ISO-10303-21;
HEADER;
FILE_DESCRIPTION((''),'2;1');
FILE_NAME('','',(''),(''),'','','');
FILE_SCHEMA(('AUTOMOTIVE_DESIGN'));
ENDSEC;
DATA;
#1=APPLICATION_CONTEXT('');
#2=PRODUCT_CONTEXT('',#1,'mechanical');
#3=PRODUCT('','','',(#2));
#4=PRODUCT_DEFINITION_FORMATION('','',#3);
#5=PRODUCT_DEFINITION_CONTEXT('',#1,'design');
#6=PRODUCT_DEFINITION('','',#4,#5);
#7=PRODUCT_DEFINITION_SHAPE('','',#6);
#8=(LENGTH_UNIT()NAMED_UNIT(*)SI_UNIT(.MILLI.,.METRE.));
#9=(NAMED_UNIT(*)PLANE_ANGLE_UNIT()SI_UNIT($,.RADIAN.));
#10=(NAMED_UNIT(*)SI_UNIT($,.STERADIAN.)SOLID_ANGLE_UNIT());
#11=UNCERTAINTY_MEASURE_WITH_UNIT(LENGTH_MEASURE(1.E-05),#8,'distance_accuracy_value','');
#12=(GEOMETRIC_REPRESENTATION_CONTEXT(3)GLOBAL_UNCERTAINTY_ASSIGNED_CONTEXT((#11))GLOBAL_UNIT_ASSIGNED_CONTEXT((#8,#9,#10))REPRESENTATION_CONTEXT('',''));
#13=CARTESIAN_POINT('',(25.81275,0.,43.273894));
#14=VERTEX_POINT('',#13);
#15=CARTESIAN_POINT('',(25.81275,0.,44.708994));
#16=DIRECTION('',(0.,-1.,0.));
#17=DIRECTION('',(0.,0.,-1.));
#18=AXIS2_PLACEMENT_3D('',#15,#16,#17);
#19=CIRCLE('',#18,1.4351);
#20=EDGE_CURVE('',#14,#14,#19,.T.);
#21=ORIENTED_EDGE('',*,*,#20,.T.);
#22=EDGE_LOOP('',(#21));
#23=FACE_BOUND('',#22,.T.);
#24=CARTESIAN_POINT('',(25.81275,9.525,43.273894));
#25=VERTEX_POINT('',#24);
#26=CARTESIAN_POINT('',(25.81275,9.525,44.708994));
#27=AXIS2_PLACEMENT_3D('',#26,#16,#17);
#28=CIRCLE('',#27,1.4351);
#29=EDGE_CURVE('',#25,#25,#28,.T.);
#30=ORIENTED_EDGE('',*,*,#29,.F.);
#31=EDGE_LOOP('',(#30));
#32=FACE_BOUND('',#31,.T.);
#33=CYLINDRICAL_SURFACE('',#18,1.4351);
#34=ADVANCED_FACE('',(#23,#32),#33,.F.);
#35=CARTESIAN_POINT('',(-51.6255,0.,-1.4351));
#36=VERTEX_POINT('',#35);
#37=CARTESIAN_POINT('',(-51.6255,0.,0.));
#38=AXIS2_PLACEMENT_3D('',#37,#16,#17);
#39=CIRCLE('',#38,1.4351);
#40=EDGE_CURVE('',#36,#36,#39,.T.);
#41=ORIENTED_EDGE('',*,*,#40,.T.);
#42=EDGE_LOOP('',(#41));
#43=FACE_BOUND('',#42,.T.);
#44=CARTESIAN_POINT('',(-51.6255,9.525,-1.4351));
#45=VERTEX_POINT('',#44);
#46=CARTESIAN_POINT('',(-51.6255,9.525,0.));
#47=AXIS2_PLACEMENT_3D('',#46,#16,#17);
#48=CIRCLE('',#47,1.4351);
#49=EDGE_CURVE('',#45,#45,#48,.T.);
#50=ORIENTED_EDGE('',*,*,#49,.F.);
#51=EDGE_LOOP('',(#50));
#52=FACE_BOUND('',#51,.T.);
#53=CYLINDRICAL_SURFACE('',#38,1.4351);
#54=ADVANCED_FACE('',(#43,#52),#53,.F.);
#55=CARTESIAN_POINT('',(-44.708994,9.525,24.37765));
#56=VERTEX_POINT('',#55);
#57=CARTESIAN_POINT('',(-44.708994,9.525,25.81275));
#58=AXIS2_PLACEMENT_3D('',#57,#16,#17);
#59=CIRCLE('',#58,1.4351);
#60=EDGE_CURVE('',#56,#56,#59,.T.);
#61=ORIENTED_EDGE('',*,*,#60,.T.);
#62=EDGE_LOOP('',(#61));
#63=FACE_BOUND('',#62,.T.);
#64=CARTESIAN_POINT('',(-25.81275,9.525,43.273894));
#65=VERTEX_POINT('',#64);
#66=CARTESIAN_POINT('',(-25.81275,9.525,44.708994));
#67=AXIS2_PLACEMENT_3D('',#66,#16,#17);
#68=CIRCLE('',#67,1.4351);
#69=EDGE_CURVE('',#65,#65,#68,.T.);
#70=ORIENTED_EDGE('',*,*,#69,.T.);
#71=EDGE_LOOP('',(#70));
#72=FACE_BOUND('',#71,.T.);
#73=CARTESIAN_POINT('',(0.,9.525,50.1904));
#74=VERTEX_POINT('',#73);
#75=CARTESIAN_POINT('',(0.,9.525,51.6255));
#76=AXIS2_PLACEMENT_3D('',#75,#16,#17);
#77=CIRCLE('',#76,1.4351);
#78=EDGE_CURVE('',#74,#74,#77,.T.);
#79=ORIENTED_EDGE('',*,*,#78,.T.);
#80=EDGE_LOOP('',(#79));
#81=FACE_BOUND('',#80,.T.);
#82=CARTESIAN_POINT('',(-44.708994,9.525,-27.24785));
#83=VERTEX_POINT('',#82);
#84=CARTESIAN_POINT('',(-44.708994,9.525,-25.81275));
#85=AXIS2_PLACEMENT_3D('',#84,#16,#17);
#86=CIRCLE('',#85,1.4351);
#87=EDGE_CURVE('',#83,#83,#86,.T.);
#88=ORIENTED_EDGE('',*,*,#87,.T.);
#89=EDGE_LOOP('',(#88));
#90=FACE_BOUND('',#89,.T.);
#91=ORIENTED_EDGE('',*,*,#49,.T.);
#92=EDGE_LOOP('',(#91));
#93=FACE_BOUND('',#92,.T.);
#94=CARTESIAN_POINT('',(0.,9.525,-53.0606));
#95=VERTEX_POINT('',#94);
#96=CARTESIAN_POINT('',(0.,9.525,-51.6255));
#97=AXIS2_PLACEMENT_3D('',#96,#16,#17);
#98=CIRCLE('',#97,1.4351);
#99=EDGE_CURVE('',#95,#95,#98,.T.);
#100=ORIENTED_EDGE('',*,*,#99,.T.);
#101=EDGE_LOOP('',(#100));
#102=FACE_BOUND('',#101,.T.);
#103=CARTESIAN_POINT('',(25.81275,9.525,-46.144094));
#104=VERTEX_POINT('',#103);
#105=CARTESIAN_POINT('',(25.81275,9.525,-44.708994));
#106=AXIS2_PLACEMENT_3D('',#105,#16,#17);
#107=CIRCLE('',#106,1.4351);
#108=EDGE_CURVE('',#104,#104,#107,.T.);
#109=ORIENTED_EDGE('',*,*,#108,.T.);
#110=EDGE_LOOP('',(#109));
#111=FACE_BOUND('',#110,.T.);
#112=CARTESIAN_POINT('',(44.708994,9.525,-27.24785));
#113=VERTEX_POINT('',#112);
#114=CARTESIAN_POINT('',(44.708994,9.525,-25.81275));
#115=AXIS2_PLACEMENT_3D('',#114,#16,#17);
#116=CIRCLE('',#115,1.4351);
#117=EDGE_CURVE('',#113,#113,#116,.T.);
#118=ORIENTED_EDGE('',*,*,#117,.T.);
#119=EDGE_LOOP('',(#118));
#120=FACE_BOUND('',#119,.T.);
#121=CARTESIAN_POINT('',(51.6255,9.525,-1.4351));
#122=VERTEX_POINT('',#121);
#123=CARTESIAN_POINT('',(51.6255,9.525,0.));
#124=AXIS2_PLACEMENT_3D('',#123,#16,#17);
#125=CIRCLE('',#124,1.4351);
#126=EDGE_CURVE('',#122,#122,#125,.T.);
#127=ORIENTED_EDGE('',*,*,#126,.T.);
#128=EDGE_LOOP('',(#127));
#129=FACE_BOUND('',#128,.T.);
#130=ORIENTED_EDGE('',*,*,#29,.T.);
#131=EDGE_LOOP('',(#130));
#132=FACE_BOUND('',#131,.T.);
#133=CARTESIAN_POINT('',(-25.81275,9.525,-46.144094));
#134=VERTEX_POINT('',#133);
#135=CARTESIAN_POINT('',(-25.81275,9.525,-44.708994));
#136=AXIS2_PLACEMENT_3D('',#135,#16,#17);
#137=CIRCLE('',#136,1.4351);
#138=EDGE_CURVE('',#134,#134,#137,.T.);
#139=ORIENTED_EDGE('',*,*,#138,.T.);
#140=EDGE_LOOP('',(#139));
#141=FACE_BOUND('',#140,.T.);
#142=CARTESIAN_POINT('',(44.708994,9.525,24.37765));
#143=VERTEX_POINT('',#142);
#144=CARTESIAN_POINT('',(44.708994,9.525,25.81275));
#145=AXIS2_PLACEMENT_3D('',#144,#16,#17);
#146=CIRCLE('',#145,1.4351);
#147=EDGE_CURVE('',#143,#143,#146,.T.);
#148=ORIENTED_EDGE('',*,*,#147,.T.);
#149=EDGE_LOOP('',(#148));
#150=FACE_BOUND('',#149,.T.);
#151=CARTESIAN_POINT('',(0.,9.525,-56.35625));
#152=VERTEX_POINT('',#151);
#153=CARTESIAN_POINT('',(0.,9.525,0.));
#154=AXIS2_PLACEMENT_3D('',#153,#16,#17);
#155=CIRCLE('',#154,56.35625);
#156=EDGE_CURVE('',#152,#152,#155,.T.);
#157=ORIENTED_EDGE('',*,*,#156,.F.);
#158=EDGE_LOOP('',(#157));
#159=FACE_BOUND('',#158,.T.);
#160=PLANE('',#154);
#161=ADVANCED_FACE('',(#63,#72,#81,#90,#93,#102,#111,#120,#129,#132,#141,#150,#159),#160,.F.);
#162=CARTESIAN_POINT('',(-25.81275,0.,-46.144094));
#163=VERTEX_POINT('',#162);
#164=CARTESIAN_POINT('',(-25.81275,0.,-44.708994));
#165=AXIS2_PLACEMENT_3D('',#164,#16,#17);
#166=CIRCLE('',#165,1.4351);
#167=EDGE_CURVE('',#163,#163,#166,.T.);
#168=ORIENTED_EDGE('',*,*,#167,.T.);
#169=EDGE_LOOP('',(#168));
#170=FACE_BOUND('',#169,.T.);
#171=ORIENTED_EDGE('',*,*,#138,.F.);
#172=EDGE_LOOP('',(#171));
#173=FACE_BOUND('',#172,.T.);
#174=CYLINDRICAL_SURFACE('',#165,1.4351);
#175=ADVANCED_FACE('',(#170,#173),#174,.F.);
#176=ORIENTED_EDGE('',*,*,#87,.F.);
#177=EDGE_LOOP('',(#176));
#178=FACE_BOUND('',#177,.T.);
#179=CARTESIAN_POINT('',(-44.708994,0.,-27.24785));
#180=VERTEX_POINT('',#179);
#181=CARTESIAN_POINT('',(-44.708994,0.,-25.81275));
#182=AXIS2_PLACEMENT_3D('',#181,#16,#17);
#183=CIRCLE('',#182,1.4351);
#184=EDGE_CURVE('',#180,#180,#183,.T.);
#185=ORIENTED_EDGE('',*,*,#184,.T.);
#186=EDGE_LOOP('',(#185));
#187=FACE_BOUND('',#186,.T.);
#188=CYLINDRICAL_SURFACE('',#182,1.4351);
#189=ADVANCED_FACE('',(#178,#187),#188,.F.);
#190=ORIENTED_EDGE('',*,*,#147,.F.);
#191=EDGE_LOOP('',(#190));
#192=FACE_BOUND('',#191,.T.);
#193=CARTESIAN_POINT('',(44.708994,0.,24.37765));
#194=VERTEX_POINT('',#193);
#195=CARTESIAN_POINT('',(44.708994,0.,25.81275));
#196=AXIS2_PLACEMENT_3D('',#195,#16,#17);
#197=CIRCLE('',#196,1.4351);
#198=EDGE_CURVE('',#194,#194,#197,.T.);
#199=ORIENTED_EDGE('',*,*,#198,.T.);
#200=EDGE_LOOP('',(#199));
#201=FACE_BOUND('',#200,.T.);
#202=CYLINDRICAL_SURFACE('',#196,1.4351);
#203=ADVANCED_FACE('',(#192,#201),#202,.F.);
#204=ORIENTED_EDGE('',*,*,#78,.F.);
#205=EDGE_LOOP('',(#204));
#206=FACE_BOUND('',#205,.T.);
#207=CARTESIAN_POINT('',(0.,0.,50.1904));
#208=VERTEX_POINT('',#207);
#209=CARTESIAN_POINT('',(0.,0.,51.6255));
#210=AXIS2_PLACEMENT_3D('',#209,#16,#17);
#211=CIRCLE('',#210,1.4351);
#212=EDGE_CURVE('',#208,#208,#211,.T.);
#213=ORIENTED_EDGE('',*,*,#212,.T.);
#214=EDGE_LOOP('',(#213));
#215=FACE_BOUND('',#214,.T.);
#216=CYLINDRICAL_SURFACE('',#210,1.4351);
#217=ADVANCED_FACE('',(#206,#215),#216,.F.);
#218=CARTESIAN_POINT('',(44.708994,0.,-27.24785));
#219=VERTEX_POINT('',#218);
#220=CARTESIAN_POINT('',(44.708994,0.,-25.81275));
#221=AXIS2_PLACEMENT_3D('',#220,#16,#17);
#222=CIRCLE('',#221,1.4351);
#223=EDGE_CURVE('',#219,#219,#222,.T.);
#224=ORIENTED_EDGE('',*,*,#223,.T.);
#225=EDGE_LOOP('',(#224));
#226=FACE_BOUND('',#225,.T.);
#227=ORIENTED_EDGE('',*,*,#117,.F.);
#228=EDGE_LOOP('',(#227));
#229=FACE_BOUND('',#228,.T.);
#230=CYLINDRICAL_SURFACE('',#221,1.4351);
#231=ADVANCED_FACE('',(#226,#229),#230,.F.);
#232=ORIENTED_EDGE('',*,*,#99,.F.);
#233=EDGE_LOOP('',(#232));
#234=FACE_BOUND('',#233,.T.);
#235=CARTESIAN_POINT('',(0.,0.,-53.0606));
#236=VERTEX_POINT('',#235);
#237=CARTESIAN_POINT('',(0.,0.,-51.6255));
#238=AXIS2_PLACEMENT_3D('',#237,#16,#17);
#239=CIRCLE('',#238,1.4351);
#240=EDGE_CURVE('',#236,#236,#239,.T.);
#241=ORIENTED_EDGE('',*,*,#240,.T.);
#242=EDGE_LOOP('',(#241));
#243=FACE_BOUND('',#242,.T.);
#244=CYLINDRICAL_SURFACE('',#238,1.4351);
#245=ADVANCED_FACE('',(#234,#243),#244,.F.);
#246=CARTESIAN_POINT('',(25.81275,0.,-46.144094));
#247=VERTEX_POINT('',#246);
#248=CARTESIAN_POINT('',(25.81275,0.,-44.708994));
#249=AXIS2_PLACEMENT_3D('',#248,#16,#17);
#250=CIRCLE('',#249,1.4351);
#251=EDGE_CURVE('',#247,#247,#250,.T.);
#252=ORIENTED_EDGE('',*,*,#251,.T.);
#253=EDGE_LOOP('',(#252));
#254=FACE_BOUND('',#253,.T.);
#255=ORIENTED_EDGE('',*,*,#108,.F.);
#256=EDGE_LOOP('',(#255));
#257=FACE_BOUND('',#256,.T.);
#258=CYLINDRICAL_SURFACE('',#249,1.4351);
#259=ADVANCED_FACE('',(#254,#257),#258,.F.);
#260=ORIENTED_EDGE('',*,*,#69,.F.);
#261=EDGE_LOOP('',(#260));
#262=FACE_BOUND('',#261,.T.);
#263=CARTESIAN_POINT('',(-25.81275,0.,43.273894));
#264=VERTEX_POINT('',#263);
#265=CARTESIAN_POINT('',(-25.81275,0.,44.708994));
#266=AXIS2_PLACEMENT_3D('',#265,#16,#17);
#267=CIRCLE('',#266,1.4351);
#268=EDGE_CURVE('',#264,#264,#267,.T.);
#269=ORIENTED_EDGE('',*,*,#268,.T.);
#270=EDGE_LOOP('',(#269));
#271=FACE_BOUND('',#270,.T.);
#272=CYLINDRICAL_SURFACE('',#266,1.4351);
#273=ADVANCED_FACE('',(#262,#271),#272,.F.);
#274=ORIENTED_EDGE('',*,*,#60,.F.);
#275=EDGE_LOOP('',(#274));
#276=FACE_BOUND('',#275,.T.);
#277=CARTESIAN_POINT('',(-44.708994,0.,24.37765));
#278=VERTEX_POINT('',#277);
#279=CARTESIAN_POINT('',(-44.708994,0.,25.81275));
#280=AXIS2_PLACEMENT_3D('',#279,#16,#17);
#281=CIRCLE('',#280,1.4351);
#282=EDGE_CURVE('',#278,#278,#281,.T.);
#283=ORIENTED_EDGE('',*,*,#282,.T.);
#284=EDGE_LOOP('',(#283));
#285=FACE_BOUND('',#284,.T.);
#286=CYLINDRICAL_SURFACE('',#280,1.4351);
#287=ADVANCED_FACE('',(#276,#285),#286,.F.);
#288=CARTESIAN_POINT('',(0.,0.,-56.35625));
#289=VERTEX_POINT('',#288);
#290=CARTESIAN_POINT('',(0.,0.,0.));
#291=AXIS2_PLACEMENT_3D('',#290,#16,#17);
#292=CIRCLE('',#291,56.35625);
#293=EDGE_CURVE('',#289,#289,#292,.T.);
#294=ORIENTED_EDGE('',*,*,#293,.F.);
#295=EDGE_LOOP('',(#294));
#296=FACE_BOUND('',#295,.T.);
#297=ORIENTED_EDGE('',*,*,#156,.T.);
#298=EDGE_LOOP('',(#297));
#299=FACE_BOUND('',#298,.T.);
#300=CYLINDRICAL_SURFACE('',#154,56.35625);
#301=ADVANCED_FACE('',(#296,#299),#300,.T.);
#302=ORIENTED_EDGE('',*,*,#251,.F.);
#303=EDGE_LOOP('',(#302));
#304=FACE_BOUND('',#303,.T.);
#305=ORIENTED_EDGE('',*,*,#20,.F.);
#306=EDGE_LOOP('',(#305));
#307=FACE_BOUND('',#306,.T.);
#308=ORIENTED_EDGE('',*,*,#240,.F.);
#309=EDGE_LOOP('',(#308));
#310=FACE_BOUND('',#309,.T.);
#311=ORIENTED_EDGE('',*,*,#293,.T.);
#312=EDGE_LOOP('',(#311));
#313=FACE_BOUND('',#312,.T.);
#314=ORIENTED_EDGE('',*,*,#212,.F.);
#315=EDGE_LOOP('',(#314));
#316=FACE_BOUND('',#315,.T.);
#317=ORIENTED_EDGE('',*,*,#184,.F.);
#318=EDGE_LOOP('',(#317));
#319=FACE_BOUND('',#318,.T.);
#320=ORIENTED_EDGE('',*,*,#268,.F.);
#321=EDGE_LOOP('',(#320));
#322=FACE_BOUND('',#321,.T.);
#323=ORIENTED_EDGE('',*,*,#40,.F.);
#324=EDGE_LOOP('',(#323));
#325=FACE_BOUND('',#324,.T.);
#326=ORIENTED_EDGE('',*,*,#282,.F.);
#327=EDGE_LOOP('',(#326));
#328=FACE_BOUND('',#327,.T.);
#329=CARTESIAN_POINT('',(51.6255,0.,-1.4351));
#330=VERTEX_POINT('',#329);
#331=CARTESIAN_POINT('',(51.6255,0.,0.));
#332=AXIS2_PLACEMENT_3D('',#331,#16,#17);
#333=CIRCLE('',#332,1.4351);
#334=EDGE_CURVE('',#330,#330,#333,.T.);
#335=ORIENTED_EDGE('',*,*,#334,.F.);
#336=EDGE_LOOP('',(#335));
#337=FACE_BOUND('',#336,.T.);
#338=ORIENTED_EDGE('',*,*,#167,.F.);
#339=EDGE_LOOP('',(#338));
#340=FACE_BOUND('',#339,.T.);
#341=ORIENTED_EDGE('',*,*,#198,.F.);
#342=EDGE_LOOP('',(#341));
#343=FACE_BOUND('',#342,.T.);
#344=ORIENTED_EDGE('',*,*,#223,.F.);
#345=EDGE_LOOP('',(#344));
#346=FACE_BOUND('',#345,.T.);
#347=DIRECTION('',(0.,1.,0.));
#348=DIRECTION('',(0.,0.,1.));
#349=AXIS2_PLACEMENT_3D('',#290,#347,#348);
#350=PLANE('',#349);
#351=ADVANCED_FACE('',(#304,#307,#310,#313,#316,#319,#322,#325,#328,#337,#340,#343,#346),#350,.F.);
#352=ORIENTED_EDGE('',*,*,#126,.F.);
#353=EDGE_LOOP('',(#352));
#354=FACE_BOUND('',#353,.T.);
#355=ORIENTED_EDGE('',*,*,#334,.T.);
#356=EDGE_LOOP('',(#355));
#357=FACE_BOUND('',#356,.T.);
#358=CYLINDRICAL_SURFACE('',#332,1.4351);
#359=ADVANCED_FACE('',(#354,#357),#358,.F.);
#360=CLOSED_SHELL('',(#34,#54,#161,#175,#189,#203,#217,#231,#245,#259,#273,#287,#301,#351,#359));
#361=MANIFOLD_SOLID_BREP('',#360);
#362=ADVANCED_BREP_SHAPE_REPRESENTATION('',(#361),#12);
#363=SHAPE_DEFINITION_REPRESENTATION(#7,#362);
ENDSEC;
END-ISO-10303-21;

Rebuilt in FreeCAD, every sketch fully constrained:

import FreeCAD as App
import Part
import Sketcher
from FreeCAD import Vector
Q = App.Units.Quantity

doc = App.newDocument("Part")
params = doc.addObject("Spreadsheet::Sheet", "Params")
for row, (alias, value) in enumerate([
    ("sketch1_diameter", "2 in"),
    ("pad1_length", "0.75 in"),
    ("sketch2_diameter", "4.4375 in"),
    ("pad2_length", "0.375 in"),
    ("sketch3_diameter", "0.113 in"),
    ("hole_diameter", "0.113 in"),
    ("hole_depth", "0.375 in"),
    ("pocket1_length", "12 in"),
], start=1):
    params.set(f"A{row}", alias)
    params.set(f"B{row}", "=" + value)
    params.setAlias(f"B{row}", alias)

body = doc.addObject("PartDesign::Body", "Body")

# Sketch on XZ plane
sketch1 = doc.addObject("Sketcher::SketchObject", "Sketch")
body.addObject(sketch1)
sketch1.AttachmentSupport = (doc.XZ_Plane, [""])
sketch1.MapMode = "FlatFace"
sketch1.addGeometry(Part.Circle(Vector(0, 0, 0), Vector(0, 0, 1), 25), False)
sketch1.addConstraint(Sketcher.Constraint("Coincident", 0, 3, -1, 1))
sketch1.addConstraint(Sketcher.Constraint("Diameter", 0, Q("2 in")))
sketch1.setExpression("Constraints[1]", "Params.sketch1_diameter")
pad1 = doc.addObject("PartDesign::Pad", "Pad")
body.addObject(pad1)
pad1.Profile = sketch1
pad1.setExpression("Length", "Params.pad1_length")
pad1.Reversed = True

# Sketch on XZ plane
sketch2 = doc.addObject("Sketcher::SketchObject", "Sketch001")
body.addObject(sketch2)
sketch2.AttachmentSupport = (doc.XZ_Plane, [""])
sketch2.MapMode = "FlatFace"
sketch2.addGeometry(Part.Circle(Vector(0, 0, 0), Vector(0, 0, 1), 56), False)
sketch2.addConstraint(Sketcher.Constraint("Coincident", 0, 3, -1, 1))
sketch2.addConstraint(Sketcher.Constraint("Diameter", 0, Q("4.4375 in")))
sketch2.setExpression("Constraints[1]", "Params.sketch2_diameter")
pad2 = doc.addObject("PartDesign::Pad", "Pad001")
body.addObject(pad2)
pad2.Profile = sketch2
pad2.setExpression("Length", "Params.pad2_length")
pad2.Reversed = True

# Sketch on XZ plane
sketch3 = doc.addObject("Sketcher::SketchObject", "Sketch002")
body.addObject(sketch3)
sketch3.AttachmentSupport = (doc.XZ_Plane, [""])
sketch3.MapMode = "FlatFace"
sketch3.addGeometry(Part.Circle(Vector(25.8, 44.7, 0), Vector(0, 0, 1), 1.4), False)
sketch3.addGeometry(Part.Circle(Vector(44.7, 25.8, 0), Vector(0, 0, 1), 1.4), False)
sketch3.addGeometry(Part.Circle(Vector(51.6, 0, 0), Vector(0, 0, 1), 1.4), False)
sketch3.addGeometry(Part.Circle(Vector(44.7, -25.8, 0), Vector(0, 0, 1), 1.4), False)
sketch3.addGeometry(Part.Circle(Vector(25.8, -44.7, 0), Vector(0, 0, 1), 1.4), False)
sketch3.addGeometry(Part.Circle(Vector(0, -51.6, 0), Vector(0, 0, 1), 1.4), False)
sketch3.addGeometry(Part.Circle(Vector(-25.8, -44.7, 0), Vector(0, 0, 1), 1.4), False)
sketch3.addGeometry(Part.Circle(Vector(-44.7, -25.8, 0), Vector(0, 0, 1), 1.4), False)
sketch3.addGeometry(Part.Circle(Vector(-51.6, 0, 0), Vector(0, 0, 1), 1.4), False)
sketch3.addGeometry(Part.Circle(Vector(-44.7, 25.8, 0), Vector(0, 0, 1), 1.4), False)
sketch3.addGeometry(Part.Circle(Vector(-25.8, 44.7, 0), Vector(0, 0, 1), 1.4), False)
sketch3.addGeometry(Part.Circle(Vector(0, 51.6, 0), Vector(0, 0, 1), 1.4), False)
sketch3.addConstraint(Sketcher.Constraint("Equal", 0, 1))
sketch3.addConstraint(Sketcher.Constraint("Equal", 1, 2))
sketch3.addConstraint(Sketcher.Constraint("Equal", 2, 3))
sketch3.addConstraint(Sketcher.Constraint("Equal", 3, 4))
sketch3.addConstraint(Sketcher.Constraint("Equal", 4, 5))
sketch3.addConstraint(Sketcher.Constraint("Equal", 5, 6))
sketch3.addConstraint(Sketcher.Constraint("Equal", 6, 7))
sketch3.addConstraint(Sketcher.Constraint("Equal", 7, 8))
sketch3.addConstraint(Sketcher.Constraint("Equal", 8, 9))
sketch3.addConstraint(Sketcher.Constraint("Equal", 9, 10))
sketch3.addConstraint(Sketcher.Constraint("Equal", 10, 11))
sketch3.addConstraint(Sketcher.Constraint("Symmetric", 0, 3, 6, 3, -1, 1))
sketch3.addConstraint(Sketcher.Constraint("Symmetric", 1, 3, 7, 3, -1, 1))
sketch3.addConstraint(Sketcher.Constraint("Symmetric", 2, 3, 8, 3, -1, 1))
sketch3.addConstraint(Sketcher.Constraint("Symmetric", 3, 3, 9, 3, -1, 1))
sketch3.addConstraint(Sketcher.Constraint("Symmetric", 4, 3, 10, 3, -1, 1))
sketch3.addConstraint(Sketcher.Constraint("Symmetric", 5, 3, 11, 3, -1, 1))
sketch3.addConstraint(Sketcher.Constraint("Symmetric", 4, 3, 6, 3, -2))
sketch3.addConstraint(Sketcher.Constraint("Symmetric", 3, 3, 7, 3, -2))
sketch3.addConstraint(Sketcher.Constraint("PointOnObject", 2, 3, -1))
sketch3.addConstraint(Sketcher.Constraint("PointOnObject", 5, 3, -2))
sketch3.addConstraint(Sketcher.Constraint("Diameter", 0, Q("0.113 in")))
sketch3.addConstraint(Sketcher.Constraint("DistanceX", -1, 1, 2, 3, Q("2.0325 in")))
sketch3.addConstraint(Sketcher.Constraint("DistanceY", 5, 3, -1, 1, Q("2.0325 in")))
sketch3.addConstraint(Sketcher.Constraint("DistanceY", 3, 3, 1, 3, Q("2.0325 in")))
sketch3.addConstraint(Sketcher.Constraint("DistanceX", 6, 3, 4, 3, Q("2.0325 in")))
sketch3.addConstraint(Sketcher.Constraint("DistanceY", 4, 3, 0, 3, Q("89.417989 mm")))
sketch3.addConstraint(Sketcher.Constraint("DistanceX", 7, 3, 3, 3, Q("89.417989 mm")))
sketch3.setExpression("Constraints[21]", "Params.sketch3_diameter")
doc.recompute()
hole = doc.addObject("PartDesign::Hole", "Hole")
body.addObject(hole)
hole.Profile = sketch3
hole.ThreadType = "None"
hole.setExpression("Diameter", "Params.hole_diameter")
hole.DepthType = "Dimension"
hole.setExpression("Depth", "Params.hole_depth")
hole.DrillPoint = "Flat"

# Sketch on XY plane
sketch4 = doc.addObject("Sketcher::SketchObject", "Sketch003")
body.addObject(sketch4)
sketch4.AttachmentSupport = (doc.XY_Plane, [""])
sketch4.MapMode = "FlatFace"
sketch4.addGeometry(Part.LineSegment(Vector(-40, 26, 0), Vector(-40, 10, 0)), False)
sketch4.addGeometry(Part.LineSegment(Vector(-40, 10, 0), Vector(32, 10, 0)), False)
sketch4.addGeometry(Part.LineSegment(Vector(32, 10, 0), Vector(32, 26, 0)), False)
sketch4.addGeometry(Part.LineSegment(Vector(32, 26, 0), Vector(-40, 26, 0)), False)
sketch4.addConstraint(Sketcher.Constraint("Coincident", 0, 2, 1, 1))
sketch4.addConstraint(Sketcher.Constraint("Coincident", 1, 2, 2, 1))
sketch4.addConstraint(Sketcher.Constraint("Coincident", 2, 2, 3, 1))
sketch4.addConstraint(Sketcher.Constraint("Coincident", 3, 2, 0, 1))
sketch4.addConstraint(Sketcher.Constraint("Vertical", 0))
sketch4.addConstraint(Sketcher.Constraint("Horizontal", 1))
sketch4.addConstraint(Sketcher.Constraint("Vertical", 2))
sketch4.addConstraint(Sketcher.Constraint("Horizontal", 3))
sketch4.addConstraint(Sketcher.Constraint("DistanceY", -1, 1, 0, 2, Q("0.375 in")))
sketch4.addConstraint(Sketcher.Constraint("DistanceX", 1, 1, 1, 2, Q("71.924294 mm")))
sketch4.addConstraint(Sketcher.Constraint("DistanceY", 0, 2, 0, 1, Q("16.463903 mm")))
sketch4.addConstraint(Sketcher.Constraint("DistanceX", 0, 2, -1, 1, Q("39.660382 mm")))
pocket1 = doc.addObject("PartDesign::Pocket", "Pocket")
body.addObject(pocket1)
pocket1.Profile = sketch4
pocket1.setExpression("Length", "Params.pocket1_length")
pocket1.Midplane = True

doc.recompute()
